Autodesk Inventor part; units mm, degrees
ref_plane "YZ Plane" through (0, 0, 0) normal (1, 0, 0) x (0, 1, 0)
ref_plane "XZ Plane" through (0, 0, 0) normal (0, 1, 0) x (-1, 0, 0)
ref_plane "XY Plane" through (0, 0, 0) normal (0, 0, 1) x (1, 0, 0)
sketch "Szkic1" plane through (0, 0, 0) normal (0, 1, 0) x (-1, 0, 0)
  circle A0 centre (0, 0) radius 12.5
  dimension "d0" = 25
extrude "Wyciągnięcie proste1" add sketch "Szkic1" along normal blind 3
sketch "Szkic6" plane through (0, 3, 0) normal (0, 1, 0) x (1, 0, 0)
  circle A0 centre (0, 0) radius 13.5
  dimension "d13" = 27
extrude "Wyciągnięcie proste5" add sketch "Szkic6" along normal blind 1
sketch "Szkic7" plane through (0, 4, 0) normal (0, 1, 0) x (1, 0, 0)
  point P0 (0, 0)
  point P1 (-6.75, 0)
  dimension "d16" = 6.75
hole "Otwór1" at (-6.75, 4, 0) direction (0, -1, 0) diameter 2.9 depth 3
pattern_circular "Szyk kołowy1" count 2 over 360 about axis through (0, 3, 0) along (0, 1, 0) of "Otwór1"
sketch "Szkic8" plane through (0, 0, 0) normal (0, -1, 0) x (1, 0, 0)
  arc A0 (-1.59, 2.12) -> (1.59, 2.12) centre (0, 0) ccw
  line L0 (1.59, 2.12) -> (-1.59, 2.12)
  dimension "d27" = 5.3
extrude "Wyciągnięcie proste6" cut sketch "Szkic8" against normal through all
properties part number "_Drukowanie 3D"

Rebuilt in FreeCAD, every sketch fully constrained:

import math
import FreeCAD as App
import Part
import Sketcher

doc = App.newDocument("Part")
body = doc.addObject("PartDesign::Body", "Body")

sketch1 = doc.addObject("Sketcher::SketchObject", "Sketch")
body.addObject(sketch1)
sketch1.AttachmentSupport = (doc.XZ_Plane, [""])
sketch1.MapMode = "FlatFace"
sketch1.addGeometry(Part.Circle(App.Vector(0, 0, 0), App.Vector(0, 0, 1), 12), False)
sketch1.addConstraint([
    Sketcher.Constraint("Coincident", 0, 3, -1, 1),
    Sketcher.Constraint("Diameter", 0, 25.0),
])
pad1 = doc.addObject("PartDesign::Pad", "Pad")
body.addObject(pad1)
pad1.Profile = sketch1
pad1.Length = 3
pad1.Reversed = True

sketch2 = doc.addObject("Sketcher::SketchObject", "Sketch001")
body.addObject(sketch2)
sketch2.AttachmentSupport = (doc.XZ_Plane, [""])
sketch2.MapMode = "FlatFace"
sketch2.AttachmentOffset = App.Placement(App.Vector(0, 0, -3), App.Rotation())
sketch2.addGeometry(Part.Circle(App.Vector(0, 0, 0), App.Vector(0, 0, 1), 14), False)
sketch2.addConstraint([
    Sketcher.Constraint("Coincident", 0, 3, -1, 1),
    Sketcher.Constraint("Diameter", 0, 27.0),
])
pad2 = doc.addObject("PartDesign::Pad", "Pad001")
body.addObject(pad2)
pad2.Profile = sketch2
pad2.Length = 1
pad2.Reversed = True

sketch3 = doc.addObject("Sketcher::SketchObject", "Sketch002")
body.addObject(sketch3)
sketch3.AttachmentSupport = (doc.XZ_Plane, [""])
sketch3.MapMode = "FlatFace"
sketch3.AttachmentOffset = App.Placement(App.Vector(0, 0, -4), App.Rotation())
sketch3.addGeometry(Part.Circle(App.Vector(-6.8, 0, 0), App.Vector(0, 0, 1), 1.4), False)
sketch3.addConstraint([
    Sketcher.Constraint("PointOnObject", 0, 3, -1),
    Sketcher.Constraint("Diameter", 0, 2.9),
    Sketcher.Constraint("DistanceX", 0, 3, -1, 1, 6.75),
])
doc.recompute()
hole = doc.addObject("PartDesign::Hole", "Hole")
body.addObject(hole)
hole.Profile = sketch3
hole.ThreadType = "None"
hole.Diameter = 2.9
hole.DepthType = "Dimension"
hole.Depth = 3
hole.DrillPoint = "Flat"
hole.Reversed = True
doc.recompute()

polarpattern = doc.addObject("PartDesign::PolarPattern", "PolarPattern")
body.addObject(polarpattern)
polarpattern.Originals = [hole]
polarpattern.Axis = (doc.Y_Axis, [""])
polarpattern.Angle = 360
polarpattern.Occurrences = 2
body.Tip = polarpattern

sketch4 = doc.addObject("Sketcher::SketchObject", "Sketch003")
body.addObject(sketch4)
sketch4.AttachmentSupport = (doc.XZ_Plane, [""])
sketch4.MapMode = "FlatFace"
sketch4.addGeometry([
    Part.LineSegment(App.Vector(1.6, 2.1, 0), App.Vector(-1.6, 2.1, 0)),
    Part.ArcOfCircle(Part.Circle(App.Vector(0, 0, 0), App.Vector(0, 0, 1), 2.7), math.radians(127), math.radians(413)),
], False)
sketch4.addConstraint([
    Sketcher.Constraint("Coincident", 0, 1, 1, 2),
    Sketcher.Constraint("Coincident", 1, 1, 0, 2),
    Sketcher.Constraint("Horizontal", 0),
    Sketcher.Constraint("Coincident", 1, 3, -1, 1),
    Sketcher.Constraint("Radius", 1, 2.65),
    Sketcher.Constraint("DistanceX", 0, 2, 0, 1, 3.18),
])
pocket1 = doc.addObject("PartDesign::Pocket", "Pocket")
body.addObject(pocket1)
pocket1.Profile = sketch4
pocket1.Type = "ThroughAll"

doc.recompute()
